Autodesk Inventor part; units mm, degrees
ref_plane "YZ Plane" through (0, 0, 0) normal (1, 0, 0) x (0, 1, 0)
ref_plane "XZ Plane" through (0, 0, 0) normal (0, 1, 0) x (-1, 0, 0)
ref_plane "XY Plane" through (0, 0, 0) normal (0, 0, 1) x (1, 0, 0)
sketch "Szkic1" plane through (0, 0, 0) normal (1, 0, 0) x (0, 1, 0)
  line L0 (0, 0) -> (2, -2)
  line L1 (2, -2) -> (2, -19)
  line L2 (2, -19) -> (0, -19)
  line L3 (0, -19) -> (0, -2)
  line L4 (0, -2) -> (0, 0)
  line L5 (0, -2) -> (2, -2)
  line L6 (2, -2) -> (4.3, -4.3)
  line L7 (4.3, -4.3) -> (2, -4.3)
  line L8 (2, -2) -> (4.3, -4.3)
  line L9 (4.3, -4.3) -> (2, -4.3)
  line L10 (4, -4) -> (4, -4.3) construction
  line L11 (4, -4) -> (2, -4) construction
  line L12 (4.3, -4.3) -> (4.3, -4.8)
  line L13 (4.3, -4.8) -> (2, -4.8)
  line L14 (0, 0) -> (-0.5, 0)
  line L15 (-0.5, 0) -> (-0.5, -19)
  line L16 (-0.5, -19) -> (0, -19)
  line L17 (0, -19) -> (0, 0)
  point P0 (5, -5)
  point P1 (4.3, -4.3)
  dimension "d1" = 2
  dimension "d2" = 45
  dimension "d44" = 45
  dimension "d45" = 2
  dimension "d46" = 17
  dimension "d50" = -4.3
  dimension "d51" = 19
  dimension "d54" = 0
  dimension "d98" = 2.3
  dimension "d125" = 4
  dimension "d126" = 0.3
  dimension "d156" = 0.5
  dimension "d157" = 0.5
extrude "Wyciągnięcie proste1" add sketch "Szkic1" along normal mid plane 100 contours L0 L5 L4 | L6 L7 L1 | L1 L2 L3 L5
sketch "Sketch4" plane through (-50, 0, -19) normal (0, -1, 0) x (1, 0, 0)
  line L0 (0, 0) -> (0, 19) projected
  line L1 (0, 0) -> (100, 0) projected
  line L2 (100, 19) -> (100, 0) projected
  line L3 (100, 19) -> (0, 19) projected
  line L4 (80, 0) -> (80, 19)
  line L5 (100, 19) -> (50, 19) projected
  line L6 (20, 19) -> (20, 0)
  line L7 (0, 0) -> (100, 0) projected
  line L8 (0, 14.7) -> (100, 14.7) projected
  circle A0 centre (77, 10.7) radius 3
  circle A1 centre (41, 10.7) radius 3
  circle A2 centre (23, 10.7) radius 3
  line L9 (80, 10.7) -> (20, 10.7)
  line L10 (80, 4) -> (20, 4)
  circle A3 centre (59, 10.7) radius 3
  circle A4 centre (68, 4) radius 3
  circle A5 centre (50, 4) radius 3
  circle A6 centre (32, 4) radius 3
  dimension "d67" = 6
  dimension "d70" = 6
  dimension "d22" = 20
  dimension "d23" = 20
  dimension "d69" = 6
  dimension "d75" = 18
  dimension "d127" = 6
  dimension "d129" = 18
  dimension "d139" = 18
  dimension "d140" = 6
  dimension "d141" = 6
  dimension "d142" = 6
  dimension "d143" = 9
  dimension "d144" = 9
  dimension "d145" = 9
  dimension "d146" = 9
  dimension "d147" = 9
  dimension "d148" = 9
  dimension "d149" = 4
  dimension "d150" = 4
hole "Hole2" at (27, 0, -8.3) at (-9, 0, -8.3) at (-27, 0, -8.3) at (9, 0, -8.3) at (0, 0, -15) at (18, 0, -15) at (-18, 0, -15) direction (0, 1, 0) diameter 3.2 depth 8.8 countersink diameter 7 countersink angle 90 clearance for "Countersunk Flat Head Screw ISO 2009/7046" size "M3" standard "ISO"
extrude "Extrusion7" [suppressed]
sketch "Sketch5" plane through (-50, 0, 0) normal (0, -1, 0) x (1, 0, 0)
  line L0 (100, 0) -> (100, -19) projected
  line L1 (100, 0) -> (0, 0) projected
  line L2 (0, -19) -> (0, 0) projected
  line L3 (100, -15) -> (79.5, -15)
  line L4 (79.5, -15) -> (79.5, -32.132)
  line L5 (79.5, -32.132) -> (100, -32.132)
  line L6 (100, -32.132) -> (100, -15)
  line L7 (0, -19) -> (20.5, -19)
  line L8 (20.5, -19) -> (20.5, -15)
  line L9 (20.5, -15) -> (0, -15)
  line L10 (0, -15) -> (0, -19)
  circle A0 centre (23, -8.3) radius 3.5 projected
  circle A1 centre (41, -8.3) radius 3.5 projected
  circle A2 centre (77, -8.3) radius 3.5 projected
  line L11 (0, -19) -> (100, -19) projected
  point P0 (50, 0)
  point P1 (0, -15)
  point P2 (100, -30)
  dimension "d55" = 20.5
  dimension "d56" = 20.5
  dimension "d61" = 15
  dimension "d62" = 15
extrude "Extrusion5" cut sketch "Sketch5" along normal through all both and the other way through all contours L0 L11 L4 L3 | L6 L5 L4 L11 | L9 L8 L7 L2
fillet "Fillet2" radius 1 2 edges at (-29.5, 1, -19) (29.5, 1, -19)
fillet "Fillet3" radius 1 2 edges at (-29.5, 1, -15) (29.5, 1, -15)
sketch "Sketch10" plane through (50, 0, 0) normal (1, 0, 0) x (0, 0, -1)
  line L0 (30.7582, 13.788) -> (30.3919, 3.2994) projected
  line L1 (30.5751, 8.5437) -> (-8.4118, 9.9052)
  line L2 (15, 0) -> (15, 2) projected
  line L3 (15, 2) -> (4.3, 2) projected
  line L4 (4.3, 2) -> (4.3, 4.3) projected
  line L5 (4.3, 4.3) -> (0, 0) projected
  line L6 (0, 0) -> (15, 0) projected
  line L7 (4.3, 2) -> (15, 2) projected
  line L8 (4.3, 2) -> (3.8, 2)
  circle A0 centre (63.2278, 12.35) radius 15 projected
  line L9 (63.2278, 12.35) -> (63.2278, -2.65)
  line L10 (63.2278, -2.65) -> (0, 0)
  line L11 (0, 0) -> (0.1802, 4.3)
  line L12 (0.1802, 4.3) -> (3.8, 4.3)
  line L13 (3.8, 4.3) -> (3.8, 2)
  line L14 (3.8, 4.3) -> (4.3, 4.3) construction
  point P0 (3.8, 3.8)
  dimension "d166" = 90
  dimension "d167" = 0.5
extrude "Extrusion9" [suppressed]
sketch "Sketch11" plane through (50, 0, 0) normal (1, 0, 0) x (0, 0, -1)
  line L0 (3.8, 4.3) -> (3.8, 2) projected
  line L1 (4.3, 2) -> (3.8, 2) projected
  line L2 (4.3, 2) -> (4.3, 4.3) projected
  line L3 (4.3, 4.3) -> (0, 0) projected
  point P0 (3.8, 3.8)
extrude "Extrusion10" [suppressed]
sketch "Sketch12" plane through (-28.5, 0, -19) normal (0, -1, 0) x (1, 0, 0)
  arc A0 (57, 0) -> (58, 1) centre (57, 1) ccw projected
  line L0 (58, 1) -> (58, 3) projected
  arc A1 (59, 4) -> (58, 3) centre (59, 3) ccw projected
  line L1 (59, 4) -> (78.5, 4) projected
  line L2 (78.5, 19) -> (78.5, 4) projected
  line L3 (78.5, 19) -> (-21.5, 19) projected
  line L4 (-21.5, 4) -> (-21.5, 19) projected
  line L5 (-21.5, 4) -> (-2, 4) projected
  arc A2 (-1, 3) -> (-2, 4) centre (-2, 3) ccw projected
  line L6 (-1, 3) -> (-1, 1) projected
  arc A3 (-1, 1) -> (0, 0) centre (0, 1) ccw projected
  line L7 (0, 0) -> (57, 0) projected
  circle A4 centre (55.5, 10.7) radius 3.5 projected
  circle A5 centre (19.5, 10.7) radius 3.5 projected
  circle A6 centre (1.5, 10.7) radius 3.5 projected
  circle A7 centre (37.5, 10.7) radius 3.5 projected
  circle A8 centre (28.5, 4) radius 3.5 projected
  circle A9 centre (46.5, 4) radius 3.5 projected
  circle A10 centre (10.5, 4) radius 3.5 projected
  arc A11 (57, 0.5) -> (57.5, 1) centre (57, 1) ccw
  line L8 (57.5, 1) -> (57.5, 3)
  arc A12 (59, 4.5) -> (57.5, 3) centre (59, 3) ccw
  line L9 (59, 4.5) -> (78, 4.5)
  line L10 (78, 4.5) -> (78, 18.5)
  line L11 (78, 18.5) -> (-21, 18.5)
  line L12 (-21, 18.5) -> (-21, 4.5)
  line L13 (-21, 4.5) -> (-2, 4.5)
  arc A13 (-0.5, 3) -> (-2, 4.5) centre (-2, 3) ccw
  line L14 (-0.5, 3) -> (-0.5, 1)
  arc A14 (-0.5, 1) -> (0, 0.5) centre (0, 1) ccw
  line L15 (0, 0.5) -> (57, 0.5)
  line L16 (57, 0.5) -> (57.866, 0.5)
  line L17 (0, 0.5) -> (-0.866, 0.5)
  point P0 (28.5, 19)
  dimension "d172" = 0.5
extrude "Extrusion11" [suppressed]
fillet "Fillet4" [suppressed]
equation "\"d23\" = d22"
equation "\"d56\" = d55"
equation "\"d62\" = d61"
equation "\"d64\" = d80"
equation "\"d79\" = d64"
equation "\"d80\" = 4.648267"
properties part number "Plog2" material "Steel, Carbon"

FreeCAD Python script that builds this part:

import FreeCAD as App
import Part
import Sketcher
from FreeCAD import Vector
Q = App.Units.Quantity


def edges_at(feature, points):
    """Names of the edges that pass closest to the given points."""
    edges = feature.Shape.Edges
    near = lambda p: min(range(len(edges)), key=lambda i: edges[i].distToShape(Part.Vertex(*p))[0])
    return sorted({f"Edge{near(p) + 1}" for p in points})


def add_polygon(sketch, points):
    """Adds a closed chain of lines whose ends are joined by coincident constraints."""
    first, n = sketch.GeometryCount, len(points)
    for a, b in zip(points, points[1:] + points[:1]):
        sketch.addGeometry(Part.LineSegment(App.Vector(*a, 0), App.Vector(*b, 0)), False)
    for i in range(n):
        sketch.addConstraint(Sketcher.Constraint("Coincident", first + i, 2, first + (i + 1) % n, 1))

doc = App.newDocument("Part")
params = doc.addObject("Spreadsheet::Sheet", "Params")
for row, (alias, value) in enumerate([
    ("sketch1_width", "2 mm"),
    ("sketch1_height", "19 mm"),
    ("sketch1_width2", "2.3 mm"),
    ("pad1_length", "100 mm"),
    ("sketch2_diameter", "3.2 mm"),
    ("hole_diameter", "3.2 mm"),
    ("hole_depth", "8.8 mm"),
    ("hole_csink_diameter", "7 mm"),
    ("sketch3_width", "20.5 mm"),
    ("sketch3_height", "4 mm"),
    ("fillet_radius", "1 mm"),
    ("fillet2_radius", "1 mm"),
], start=1):
    params.set(f"A{row}", alias)
    params.set(f"B{row}", "=" + value)
    params.setAlias(f"B{row}", alias)

body = doc.addObject("PartDesign::Body", "Body")

# Sketch on YZ plane
sketch1 = body.newObject("Sketcher::SketchObject", "Sketch")
sketch1.AttachmentSupport = (doc.getObject("YZ_Plane"), [""])
sketch1.MapMode = "FlatFace"
add_polygon(sketch1, [(0, 0), (0, -19), (2, -19), (2, -4.3), (4.3, -4.3)])  # lines 0-4
sketch1.addConstraint([
    Sketcher.Constraint("Vertical", 0),
    Sketcher.Constraint("Horizontal", 1),
    Sketcher.Constraint("Vertical", 2),
    Sketcher.Constraint("Horizontal", 3),
    Sketcher.Constraint("Coincident", 4, 2, -1, 1),
    Sketcher.Constraint("DistanceX", 1, 1, 1, 2, Q("2 mm")),
    Sketcher.Constraint("DistanceY", 0, 2, 0, 1, Q("19 mm")),
    Sketcher.Constraint("DistanceX", 3, 1, 3, 2, Q("2.3 mm")),
    Sketcher.Constraint("DistanceY", 2, 2, -1, 1, Q("4.3 mm")),
])
sketch1.setExpression("Constraints[10]", "Params.sketch1_width")
sketch1.setExpression("Constraints[11]", "Params.sketch1_height")
sketch1.setExpression("Constraints[12]", "Params.sketch1_width2")
pad1 = body.newObject("PartDesign::Pad", "Pad")
pad1.Profile = sketch1
pad1.setExpression("Length", "Params.pad1_length")
pad1.Midplane = True

# Sketch on XZ plane
sketch2 = body.newObject("Sketcher::SketchObject", "Sketch001")
sketch2.AttachmentSupport = (doc.getObject("XZ_Plane"), [""])
sketch2.MapMode = "FlatFace"
sketch2.addGeometry([
    Part.Circle(Vector(27, -8.3, 0), Vector(0, 0, 1), 1.6),  # 0
    Part.Circle(Vector(-9, -8.3, 0), Vector(0, 0, 1), 1.6),  # 1
    Part.Circle(Vector(-27, -8.3, 0), Vector(0, 0, 1), 1.6),  # 2
    Part.Circle(Vector(9, -8.3, 0), Vector(0, 0, 1), 1.6),  # 3
    Part.Circle(Vector(0, -15, 0), Vector(0, 0, 1), 1.6),  # 4
    Part.Circle(Vector(18, -15, 0), Vector(0, 0, 1), 1.6),  # 5
    Part.Circle(Vector(-18, -15, 0), Vector(0, 0, 1), 1.6),  # 6
], False)
sketch2.addConstraint([
    Sketcher.Constraint("Equal", 0, 1),
    Sketcher.Constraint("Equal", 1, 2),
    Sketcher.Constraint("Equal", 2, 3),
    Sketcher.Constraint("Equal", 3, 4),
    Sketcher.Constraint("Equal", 4, 5),
    Sketcher.Constraint("Equal", 5, 6),
    Sketcher.Constraint("Symmetric", 0, 3, 2, 3, -2),
    Sketcher.Constraint("Symmetric", 1, 3, 3, 3, -2),
    Sketcher.Constraint("Symmetric", 5, 3, 6, 3, -2),
    Sketcher.Constraint("PointOnObject", 4, 3, -2),
    Sketcher.Constraint("Horizontal", 0, 3, 1, 3),
    Sketcher.Constraint("Horizontal", 4, 3, 5, 3),
    Sketcher.Constraint("Diameter", 0, Q("3.2 mm")),
    Sketcher.Constraint("DistanceX", -1, 1, 0, 3, Q("27 mm")),
    Sketcher.Constraint("DistanceX", 1, 3, -1, 1, Q("9 mm")),
    Sketcher.Constraint("DistanceY", 4, 3, -1, 1, Q("15 mm")),
    Sketcher.Constraint("DistanceX", -1, 1, 5, 3, Q("18 mm")),
    Sketcher.Constraint("DistanceY", 0, 3, -1, 1, Q("8.3 mm")),
])
sketch2.setExpression("Constraints[12]", "Params.sketch2_diameter")
doc.recompute()
hole = body.newObject("PartDesign::Hole", "Hole")
hole.Profile = sketch2
hole.ThreadType = "None"
hole.setExpression("Diameter", "Params.hole_diameter")
hole.DepthType = "Dimension"
hole.setExpression("Depth", "Params.hole_depth")
hole.DrillPoint = "Flat"
hole.HoleCutType = "Countersink"
hole.setExpression("HoleCutDiameter", "Params.hole_csink_diameter")
hole.HoleCutCountersinkAngle = 90

# Sketch on XZ plane
sketch3 = body.newObject("Sketcher::SketchObject", "Sketch002")
sketch3.AttachmentSupport = (doc.getObject("XZ_Plane"), [""])
sketch3.MapMode = "FlatFace"
add_polygon(sketch3, [(50, -15), (29.5, -15), (29.5, -32.1), (50, -32.1)])  # lines 0-3
add_polygon(sketch3, [(-29.5, -15), (-50, -15), (-50, -19), (-29.5, -19)])  # lines 4-7
sketch3.addConstraint([
    Sketcher.Constraint("Horizontal", 0),
    Sketcher.Constraint("Vertical", 1),
    Sketcher.Constraint("Horizontal", 2),
    Sketcher.Constraint("Vertical", 3),
    Sketcher.Constraint("Horizontal", 4),
    Sketcher.Constraint("Vertical", 5),
    Sketcher.Constraint("Horizontal", 6),
    Sketcher.Constraint("Vertical", 7),
    Sketcher.Constraint("Symmetric", 3, 2, 4, 2, -2),
    Sketcher.Constraint("Equal", 2, 4),
    Sketcher.Constraint("DistanceX", 0, 2, 0, 1, Q("20.5 mm")),
    Sketcher.Constraint("DistanceY", 0, 2, -1, 1, Q("15 mm")),
    Sketcher.Constraint("DistanceY", 5, 2, 5, 1, Q("4 mm")),
    Sketcher.Constraint("DistanceX", -1, 1, 2, 2, Q("50 mm")),
    Sketcher.Constraint("DistanceY", 1, 2, 1, 1, Q("17.132 mm")),
])
sketch3.setExpression("Constraints[18]", "Params.sketch3_width")
sketch3.setExpression("Constraints[20]", "Params.sketch3_height")
pocket1 = body.newObject("PartDesign::Pocket", "Pocket")
pocket1.Profile = sketch3
pocket1.Type = "ThroughAll"
pocket1.Midplane = True
doc.recompute()

fillet = body.newObject("PartDesign::Fillet", "Fillet")
fillet.Base = (pocket1, edges_at(pocket1, [(-29.5, 1, -19), (29.5, 1, -19)]))
fillet.setExpression("Radius", "Params.fillet_radius")
doc.recompute()

fillet2 = body.newObject("PartDesign::Fillet", "Fillet001")
fillet2.Base = (fillet, edges_at(fillet, [(-29.5, 1, -15), (29.5, 1, -15)]))
fillet2.setExpression("Radius", "Params.fillet2_radius")

doc.recompute()
